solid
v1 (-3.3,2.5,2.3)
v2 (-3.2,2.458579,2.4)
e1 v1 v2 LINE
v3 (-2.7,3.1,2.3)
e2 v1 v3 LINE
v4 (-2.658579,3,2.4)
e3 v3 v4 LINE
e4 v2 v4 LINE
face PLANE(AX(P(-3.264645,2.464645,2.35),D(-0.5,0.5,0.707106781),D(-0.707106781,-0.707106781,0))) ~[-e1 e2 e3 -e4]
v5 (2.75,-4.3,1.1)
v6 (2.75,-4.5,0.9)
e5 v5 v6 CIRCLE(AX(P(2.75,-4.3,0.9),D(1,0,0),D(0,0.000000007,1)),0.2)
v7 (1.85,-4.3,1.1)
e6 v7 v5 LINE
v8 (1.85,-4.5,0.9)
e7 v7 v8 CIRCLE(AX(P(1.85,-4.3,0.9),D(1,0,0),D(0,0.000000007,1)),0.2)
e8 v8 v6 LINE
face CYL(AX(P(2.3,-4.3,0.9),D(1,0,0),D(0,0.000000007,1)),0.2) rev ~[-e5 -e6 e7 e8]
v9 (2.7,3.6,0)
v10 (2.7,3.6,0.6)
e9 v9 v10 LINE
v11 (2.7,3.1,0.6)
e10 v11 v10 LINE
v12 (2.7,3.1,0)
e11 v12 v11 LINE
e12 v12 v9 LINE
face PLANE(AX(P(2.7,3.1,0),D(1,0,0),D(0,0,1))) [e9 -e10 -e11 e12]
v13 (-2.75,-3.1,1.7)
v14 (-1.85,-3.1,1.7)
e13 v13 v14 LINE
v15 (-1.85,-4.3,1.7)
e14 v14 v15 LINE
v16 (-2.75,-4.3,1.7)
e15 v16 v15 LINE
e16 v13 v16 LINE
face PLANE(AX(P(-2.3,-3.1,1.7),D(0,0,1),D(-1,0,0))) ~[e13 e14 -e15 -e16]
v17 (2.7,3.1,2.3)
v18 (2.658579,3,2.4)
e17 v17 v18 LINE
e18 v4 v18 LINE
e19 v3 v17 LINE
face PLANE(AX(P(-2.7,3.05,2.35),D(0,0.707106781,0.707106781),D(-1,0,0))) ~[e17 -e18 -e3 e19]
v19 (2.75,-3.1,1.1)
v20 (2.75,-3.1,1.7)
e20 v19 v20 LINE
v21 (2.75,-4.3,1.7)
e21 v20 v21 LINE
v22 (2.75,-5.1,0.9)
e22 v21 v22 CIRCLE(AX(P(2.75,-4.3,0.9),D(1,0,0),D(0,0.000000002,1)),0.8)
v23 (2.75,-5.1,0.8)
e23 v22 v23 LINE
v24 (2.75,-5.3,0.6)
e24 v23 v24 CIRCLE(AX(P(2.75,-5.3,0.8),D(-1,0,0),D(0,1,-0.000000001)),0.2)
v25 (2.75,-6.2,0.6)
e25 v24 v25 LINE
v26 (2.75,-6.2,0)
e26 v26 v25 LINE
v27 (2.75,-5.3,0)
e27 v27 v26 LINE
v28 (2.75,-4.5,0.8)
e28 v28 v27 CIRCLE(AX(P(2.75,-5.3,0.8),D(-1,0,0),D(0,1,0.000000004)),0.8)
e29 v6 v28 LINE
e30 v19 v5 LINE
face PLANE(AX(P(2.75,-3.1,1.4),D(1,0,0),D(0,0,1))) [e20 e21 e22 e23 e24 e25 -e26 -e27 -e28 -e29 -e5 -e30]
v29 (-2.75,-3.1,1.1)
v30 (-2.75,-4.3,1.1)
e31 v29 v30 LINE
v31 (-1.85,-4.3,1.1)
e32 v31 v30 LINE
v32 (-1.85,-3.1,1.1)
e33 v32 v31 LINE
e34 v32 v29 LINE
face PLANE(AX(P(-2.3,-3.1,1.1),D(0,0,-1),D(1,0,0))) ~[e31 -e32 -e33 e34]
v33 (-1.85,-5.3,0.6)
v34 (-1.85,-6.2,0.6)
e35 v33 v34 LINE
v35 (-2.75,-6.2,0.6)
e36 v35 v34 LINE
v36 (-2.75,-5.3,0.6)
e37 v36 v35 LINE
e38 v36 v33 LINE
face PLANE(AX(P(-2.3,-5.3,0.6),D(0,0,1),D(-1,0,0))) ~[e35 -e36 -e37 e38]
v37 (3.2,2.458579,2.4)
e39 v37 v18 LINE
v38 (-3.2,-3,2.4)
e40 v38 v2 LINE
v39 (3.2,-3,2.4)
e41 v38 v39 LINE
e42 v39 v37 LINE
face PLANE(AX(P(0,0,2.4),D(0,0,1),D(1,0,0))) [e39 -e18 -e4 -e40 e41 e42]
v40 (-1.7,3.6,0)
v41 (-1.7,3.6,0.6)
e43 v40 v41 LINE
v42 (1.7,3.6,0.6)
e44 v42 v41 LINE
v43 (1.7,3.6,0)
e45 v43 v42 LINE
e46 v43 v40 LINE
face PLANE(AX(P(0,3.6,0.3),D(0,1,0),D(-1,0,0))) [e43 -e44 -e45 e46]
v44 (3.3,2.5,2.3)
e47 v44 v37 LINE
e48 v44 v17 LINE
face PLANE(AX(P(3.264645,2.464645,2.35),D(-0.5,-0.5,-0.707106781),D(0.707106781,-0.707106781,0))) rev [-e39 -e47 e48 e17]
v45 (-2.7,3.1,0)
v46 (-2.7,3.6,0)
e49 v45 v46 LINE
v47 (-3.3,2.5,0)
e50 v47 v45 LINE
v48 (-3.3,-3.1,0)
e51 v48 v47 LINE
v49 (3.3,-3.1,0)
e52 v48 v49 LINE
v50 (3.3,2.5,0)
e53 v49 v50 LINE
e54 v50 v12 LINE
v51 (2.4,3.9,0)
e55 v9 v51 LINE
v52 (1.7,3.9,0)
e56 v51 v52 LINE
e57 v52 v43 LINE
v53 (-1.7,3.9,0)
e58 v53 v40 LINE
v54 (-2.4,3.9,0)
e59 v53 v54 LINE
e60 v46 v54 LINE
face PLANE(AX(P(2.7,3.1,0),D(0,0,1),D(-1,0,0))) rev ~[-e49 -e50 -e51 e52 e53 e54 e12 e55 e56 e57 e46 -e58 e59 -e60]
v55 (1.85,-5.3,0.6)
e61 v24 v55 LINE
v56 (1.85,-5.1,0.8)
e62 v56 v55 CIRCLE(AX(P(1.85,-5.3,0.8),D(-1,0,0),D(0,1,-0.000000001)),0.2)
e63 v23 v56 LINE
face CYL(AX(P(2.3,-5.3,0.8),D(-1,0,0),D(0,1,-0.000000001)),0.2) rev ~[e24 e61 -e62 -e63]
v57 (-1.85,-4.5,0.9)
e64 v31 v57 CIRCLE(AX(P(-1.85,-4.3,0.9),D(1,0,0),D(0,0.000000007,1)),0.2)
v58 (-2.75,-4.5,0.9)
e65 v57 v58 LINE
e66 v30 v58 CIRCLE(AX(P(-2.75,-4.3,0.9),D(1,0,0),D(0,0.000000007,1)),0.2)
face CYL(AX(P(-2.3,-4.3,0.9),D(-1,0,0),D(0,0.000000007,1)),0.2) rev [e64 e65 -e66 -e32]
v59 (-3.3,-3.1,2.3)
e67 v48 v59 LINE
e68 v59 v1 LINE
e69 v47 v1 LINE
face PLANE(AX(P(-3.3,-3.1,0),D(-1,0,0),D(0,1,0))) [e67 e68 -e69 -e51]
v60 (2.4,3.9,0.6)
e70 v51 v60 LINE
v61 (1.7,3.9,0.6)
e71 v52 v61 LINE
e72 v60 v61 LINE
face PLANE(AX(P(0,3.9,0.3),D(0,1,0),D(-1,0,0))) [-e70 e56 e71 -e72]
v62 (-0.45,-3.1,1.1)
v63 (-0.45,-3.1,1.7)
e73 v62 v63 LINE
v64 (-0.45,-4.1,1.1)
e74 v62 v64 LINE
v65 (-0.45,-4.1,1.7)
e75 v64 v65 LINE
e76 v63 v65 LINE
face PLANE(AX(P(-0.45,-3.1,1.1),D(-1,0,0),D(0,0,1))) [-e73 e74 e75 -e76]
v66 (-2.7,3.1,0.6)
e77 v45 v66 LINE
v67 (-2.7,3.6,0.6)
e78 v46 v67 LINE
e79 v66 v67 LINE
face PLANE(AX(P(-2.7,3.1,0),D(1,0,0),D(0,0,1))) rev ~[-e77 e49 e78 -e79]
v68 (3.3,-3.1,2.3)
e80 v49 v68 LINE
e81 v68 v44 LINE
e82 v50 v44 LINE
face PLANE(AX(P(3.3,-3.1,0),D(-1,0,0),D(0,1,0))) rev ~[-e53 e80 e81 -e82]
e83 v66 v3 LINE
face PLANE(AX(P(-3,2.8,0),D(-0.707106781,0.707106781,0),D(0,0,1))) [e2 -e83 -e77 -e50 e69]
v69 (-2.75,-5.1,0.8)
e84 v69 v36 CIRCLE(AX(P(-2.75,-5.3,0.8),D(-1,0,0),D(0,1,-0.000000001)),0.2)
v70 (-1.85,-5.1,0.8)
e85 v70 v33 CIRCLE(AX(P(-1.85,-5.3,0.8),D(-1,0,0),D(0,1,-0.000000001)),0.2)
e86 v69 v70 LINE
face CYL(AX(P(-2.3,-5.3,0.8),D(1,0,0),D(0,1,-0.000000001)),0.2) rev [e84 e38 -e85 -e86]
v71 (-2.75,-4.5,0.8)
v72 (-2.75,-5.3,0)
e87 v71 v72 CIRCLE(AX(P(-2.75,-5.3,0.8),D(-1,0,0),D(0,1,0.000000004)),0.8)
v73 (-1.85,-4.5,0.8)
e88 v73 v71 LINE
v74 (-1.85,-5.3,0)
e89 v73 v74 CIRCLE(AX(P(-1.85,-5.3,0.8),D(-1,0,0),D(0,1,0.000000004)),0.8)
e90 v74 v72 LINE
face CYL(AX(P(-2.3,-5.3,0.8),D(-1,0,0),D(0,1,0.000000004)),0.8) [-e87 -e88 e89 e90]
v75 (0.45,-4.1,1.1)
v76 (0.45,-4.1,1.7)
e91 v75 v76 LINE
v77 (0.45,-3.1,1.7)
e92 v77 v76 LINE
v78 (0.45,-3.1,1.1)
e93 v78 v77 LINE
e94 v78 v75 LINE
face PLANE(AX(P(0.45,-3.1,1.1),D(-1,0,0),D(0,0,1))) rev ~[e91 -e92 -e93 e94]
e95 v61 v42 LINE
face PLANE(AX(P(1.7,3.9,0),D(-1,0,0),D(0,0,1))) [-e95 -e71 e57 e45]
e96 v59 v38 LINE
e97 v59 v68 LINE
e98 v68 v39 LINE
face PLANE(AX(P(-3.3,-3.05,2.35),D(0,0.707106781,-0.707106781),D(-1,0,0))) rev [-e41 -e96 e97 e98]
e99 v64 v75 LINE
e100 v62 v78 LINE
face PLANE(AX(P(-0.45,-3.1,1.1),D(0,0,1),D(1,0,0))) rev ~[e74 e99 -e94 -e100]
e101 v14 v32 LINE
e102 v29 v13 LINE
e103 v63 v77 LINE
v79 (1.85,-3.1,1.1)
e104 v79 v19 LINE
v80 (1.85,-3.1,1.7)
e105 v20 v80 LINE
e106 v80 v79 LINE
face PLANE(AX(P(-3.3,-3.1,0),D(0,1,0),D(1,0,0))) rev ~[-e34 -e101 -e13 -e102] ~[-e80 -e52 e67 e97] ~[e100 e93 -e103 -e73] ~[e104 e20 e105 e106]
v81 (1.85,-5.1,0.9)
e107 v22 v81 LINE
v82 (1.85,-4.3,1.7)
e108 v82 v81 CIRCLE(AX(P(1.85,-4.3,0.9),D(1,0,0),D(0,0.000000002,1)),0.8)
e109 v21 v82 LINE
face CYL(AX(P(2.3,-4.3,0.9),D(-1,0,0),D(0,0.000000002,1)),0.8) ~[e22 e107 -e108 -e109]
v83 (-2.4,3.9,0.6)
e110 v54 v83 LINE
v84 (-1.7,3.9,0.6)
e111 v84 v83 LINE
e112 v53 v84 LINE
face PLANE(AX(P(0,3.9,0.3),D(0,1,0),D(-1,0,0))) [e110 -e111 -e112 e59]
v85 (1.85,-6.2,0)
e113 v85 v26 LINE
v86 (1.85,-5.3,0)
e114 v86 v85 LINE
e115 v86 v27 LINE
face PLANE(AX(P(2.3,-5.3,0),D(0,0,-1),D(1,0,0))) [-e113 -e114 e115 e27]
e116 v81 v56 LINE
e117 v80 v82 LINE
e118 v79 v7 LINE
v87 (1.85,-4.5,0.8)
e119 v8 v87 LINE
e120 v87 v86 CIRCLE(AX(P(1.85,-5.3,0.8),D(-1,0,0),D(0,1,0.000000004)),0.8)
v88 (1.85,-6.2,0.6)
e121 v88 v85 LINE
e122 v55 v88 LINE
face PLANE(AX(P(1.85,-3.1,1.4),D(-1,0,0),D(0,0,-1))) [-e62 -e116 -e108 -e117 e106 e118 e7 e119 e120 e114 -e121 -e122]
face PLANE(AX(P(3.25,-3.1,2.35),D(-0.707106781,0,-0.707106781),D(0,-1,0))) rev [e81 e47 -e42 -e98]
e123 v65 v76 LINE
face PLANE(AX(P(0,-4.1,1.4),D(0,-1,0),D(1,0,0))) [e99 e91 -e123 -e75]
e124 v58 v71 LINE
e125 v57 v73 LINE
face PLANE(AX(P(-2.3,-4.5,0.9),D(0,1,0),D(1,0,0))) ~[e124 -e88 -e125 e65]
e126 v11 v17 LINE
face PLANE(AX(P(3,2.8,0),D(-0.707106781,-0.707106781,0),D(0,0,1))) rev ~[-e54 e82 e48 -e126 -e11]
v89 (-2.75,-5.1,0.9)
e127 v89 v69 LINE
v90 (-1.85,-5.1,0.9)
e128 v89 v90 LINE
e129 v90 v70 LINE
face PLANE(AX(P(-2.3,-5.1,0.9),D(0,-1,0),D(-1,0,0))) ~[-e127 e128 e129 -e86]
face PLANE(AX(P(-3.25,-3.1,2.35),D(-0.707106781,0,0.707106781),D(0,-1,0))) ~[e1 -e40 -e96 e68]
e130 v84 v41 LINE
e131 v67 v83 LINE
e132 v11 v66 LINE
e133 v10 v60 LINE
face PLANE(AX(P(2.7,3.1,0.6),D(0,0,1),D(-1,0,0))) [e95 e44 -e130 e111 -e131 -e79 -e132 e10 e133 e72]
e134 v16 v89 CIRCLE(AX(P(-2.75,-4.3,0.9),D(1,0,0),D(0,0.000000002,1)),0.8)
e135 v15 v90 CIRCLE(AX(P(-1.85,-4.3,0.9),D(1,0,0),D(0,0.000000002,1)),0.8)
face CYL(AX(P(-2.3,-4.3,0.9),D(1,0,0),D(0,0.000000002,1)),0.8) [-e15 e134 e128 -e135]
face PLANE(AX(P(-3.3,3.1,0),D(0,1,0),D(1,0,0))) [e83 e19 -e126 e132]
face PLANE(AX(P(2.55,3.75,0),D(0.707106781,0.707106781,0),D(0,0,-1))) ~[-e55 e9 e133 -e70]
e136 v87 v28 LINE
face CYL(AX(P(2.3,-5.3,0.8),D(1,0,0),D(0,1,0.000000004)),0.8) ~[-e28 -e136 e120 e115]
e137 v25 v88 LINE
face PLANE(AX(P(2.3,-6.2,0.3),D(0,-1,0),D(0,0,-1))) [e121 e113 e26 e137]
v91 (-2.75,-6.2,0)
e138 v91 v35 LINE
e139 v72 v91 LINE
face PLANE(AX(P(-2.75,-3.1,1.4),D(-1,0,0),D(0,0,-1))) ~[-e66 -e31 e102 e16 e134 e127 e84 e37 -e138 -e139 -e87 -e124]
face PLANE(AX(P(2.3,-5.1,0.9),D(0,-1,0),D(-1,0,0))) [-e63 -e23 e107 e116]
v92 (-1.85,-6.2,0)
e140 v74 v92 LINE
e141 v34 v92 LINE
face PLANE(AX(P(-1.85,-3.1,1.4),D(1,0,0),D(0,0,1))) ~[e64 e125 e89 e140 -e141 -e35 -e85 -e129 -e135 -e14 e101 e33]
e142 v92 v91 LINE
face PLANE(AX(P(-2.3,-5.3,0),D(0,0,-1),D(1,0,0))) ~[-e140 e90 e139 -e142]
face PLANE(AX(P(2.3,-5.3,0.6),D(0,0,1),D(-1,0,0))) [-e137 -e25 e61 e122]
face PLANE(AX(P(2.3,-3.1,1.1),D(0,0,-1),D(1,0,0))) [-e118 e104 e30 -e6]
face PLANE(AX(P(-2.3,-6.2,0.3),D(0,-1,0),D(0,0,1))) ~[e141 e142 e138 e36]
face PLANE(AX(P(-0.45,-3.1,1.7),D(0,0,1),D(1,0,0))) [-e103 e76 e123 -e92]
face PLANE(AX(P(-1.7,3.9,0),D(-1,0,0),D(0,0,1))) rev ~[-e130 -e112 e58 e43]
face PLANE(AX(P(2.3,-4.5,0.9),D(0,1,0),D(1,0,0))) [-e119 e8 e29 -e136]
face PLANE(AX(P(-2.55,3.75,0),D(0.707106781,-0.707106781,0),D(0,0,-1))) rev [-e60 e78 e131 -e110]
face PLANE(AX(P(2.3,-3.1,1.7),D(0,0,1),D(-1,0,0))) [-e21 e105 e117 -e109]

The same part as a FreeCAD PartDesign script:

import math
import FreeCAD as App
import Part
import Sketcher


def edges_at(feature, points):
    """Names of the edges that pass closest to the given points."""
    edges = feature.Shape.Edges
    near = lambda p: min(range(len(edges)), key=lambda i: edges[i].distToShape(Part.Vertex(*p))[0])
    return sorted({f"Edge{near(p) + 1}" for p in points})

doc = App.newDocument("Part")
body = doc.addObject("PartDesign::Body", "Body")

sketch1 = doc.addObject("Sketcher::SketchObject", "Sketch")
body.addObject(sketch1)
sketch1.AttachmentSupport = (doc.XY_Plane, [""])
sketch1.MapMode = "FlatFace"
sketch1.addGeometry(Part.LineSegment(App.Vector(-3, 3, 0), App.Vector(-3, -3, 0)), False)
sketch1.addGeometry(Part.LineSegment(App.Vector(-3, -3, 0), App.Vector(3, -3, 0)), False)
sketch1.addGeometry(Part.LineSegment(App.Vector(3, -3, 0), App.Vector(3, 3, 0)), False)
sketch1.addGeometry(Part.LineSegment(App.Vector(3, 3, 0), App.Vector(-3, 3, 0)), False)
sketch1.addConstraint(Sketcher.Constraint("Coincident", 0, 2, 1, 1))
sketch1.addConstraint(Sketcher.Constraint("Coincident", 1, 2, 2, 1))
sketch1.addConstraint(Sketcher.Constraint("Coincident", 2, 2, 3, 1))
sketch1.addConstraint(Sketcher.Constraint("Coincident", 3, 2, 0, 1))
sketch1.addConstraint(Sketcher.Constraint("Vertical", 0))
sketch1.addConstraint(Sketcher.Constraint("Horizontal", 1))
sketch1.addConstraint(Sketcher.Constraint("Vertical", 2))
sketch1.addConstraint(Sketcher.Constraint("Horizontal", 3))
sketch1.addConstraint(Sketcher.Constraint("Symmetric", 0, 2, 2, 2, -1, 1))
sketch1.addConstraint(Sketcher.Constraint("DistanceX", 1, 1, 1, 2, 6.6))
sketch1.addConstraint(Sketcher.Constraint("DistanceY", 0, 2, 0, 1, 6.2))
pad1 = doc.addObject("PartDesign::Pad", "Pad")
body.addObject(pad1)
pad1.Profile = sketch1
pad1.Length = 2.4
doc.recompute()

chamfer = doc.addObject("PartDesign::Chamfer", "Chamfer")
body.addObject(chamfer)
chamfer.Base = (pad1, edges_at(pad1, [(-3.3, 3.1, 1.2), (3.3, 3.1, 1.2)]))
chamfer.Size = 0.6

sketch2 = doc.addObject("Sketcher::SketchObject", "Sketch001")
body.addObject(sketch2)
sketch2.AttachmentSupport = (doc.XZ_Plane, [""])
sketch2.MapMode = "FlatFace"
sketch2.AttachmentOffset = App.Placement(App.Vector(0, 0, 3.1), App.Rotation())
sketch2.addGeometry(Part.LineSegment(App.Vector(1.9, 1.7, 0), App.Vector(1.9, 1.1, 0)), False)
sketch2.addGeometry(Part.LineSegment(App.Vector(1.9, 1.1, 0), App.Vector(2.8, 1.1, 0)), False)
sketch2.addGeometry(Part.LineSegment(App.Vector(2.8, 1.1, 0), App.Vector(2.8, 1.7, 0)), False)
sketch2.addGeometry(Part.LineSegment(App.Vector(2.8, 1.7, 0), App.Vector(1.9, 1.7, 0)), False)
sketch2.addConstraint(Sketcher.Constraint("Coincident", 0, 2, 1, 1))
sketch2.addConstraint(Sketcher.Constraint("Coincident", 1, 2, 2, 1))
sketch2.addConstraint(Sketcher.Constraint("Coincident", 2, 2, 3, 1))
sketch2.addConstraint(Sketcher.Constraint("Coincident", 3, 2, 0, 1))
sketch2.addConstraint(Sketcher.Constraint("Vertical", 0))
sketch2.addConstraint(Sketcher.Constraint("Horizontal", 1))
sketch2.addConstraint(Sketcher.Constraint("Vertical", 2))
sketch2.addConstraint(Sketcher.Constraint("Horizontal", 3))
sketch2.addConstraint(Sketcher.Constraint("DistanceX", 1, 1, 1, 2, 0.9))
sketch2.addConstraint(Sketcher.Constraint("DistanceY", 0, 2, 0, 1, 0.6))
sketch2.addConstraint(Sketcher.Constraint("DistanceY", -1, 1, 0, 2, 1.1))
sketch2.addConstraint(Sketcher.Constraint("DistanceX", -1, 1, 0, 2, 1.85))

sketch3 = doc.addObject("Sketcher::SketchObject", "Sketch002")
body.addObject(sketch3)
sketch3.AttachmentSupport = (doc.YZ_Plane, [""])
sketch3.MapMode = "FlatFace"
sketch3.AttachmentOffset = App.Placement(App.Vector(0, 0, 2.3), App.Rotation())
sketch3.addGeometry(Part.LineSegment(App.Vector(-3.1, 1.4, 0), App.Vector(-4.3, 1.4, 0)), False)
sketch3.addGeometry(Part.ArcOfCircle(Part.Circle(App.Vector(-4.3, 0.9, 0), App.Vector(0, 0, 1), 0.5), math.radians(90), math.radians(180)), False)
sketch3.addGeometry(Part.LineSegment(App.Vector(-4.8, 0.9, 0), App.Vector(-4.8, 0.8, 0)), False)
sketch3.addGeometry(Part.ArcOfCircle(Part.Circle(App.Vector(-5.3, 0.8, 0), App.Vector(0, 0, 1), 0.5), math.radians(-90), math.radians(0)), False)
sketch3.addGeometry(Part.LineSegment(App.Vector(-5.3, 0.3, 0), App.Vector(-6.2, 0.3, 0)), False)
sketch3.addConstraint(Sketcher.Constraint("Tangent", 0, 2, 1, 1))
sketch3.addConstraint(Sketcher.Constraint("Tangent", 1, 2, 2, 1))
sketch3.addConstraint(Sketcher.Constraint("Tangent", 2, 2, 3, 2))
sketch3.addConstraint(Sketcher.Constraint("Tangent", 3, 1, 4, 1))
sketch3.addConstraint(Sketcher.Constraint("Horizontal", 0))
sketch3.addConstraint(Sketcher.Constraint("Vertical", 2))
sketch3.addConstraint(Sketcher.Constraint("Horizontal", 4))
sketch3.addConstraint(Sketcher.Constraint("Equal", 1, 3))
sketch3.addConstraint(Sketcher.Constraint("Radius", 1, 0.5))
sketch3.addConstraint(Sketcher.Constraint("DistanceX", 0, 2, 0, 1, 1.2))
sketch3.addConstraint(Sketcher.Constraint("DistanceX", 4, 2, 4, 1, 0.9))
sketch3.addConstraint(Sketcher.Constraint("DistanceY", 2, 2, 2, 1, 0.1))
sketch3.addConstraint(Sketcher.Constraint("DistanceX", 1, 3, -1, 1, 4.3))
sketch3.addConstraint(Sketcher.Constraint("DistanceY", -1, 1, 1, 3, 0.9))
doc.recompute()

additivepipe = doc.addObject("PartDesign::AdditivePipe", "AdditivePipe")
body.addObject(additivepipe)
additivepipe.Profile = sketch2
additivepipe.Spine = (sketch3, ["Edge1", "Edge2", "Edge3", "Edge4", "Edge5"])
doc.recompute()

mirrored = doc.addObject("PartDesign::Mirrored", "Mirrored")
body.addObject(mirrored)
mirrored.Originals = [additivepipe]
mirrored.MirrorPlane = (doc.YZ_Plane, [""])
body.Tip = mirrored

sketch4 = doc.addObject("Sketcher::SketchObject", "Sketch003")
body.addObject(sketch4)
sketch4.AttachmentSupport = (doc.XZ_Plane, [""])
sketch4.MapMode = "FlatFace"
sketch4.AttachmentOffset = App.Placement(App.Vector(0, 0, 3.1), App.Rotation())
sketch4.addGeometry(Part.LineSegment(App.Vector(-0.5, 1.7, 0), App.Vector(-0.5, 1.1, 0)), False)
sketch4.addGeometry(Part.LineSegment(App.Vector(-0.5, 1.1, 0), App.Vector(0.5, 1.1, 0)), False)
sketch4.addGeometry(Part.LineSegment(App.Vector(0.5, 1.1, 0), App.Vector(0.5, 1.7, 0)), False)
sketch4.addGeometry(Part.LineSegment(App.Vector(0.5, 1.7, 0), App.Vector(-0.5, 1.7, 0)), False)
sketch4.addConstraint(Sketcher.Constraint("Coincident", 0, 2, 1, 1))
sketch4.addConstraint(Sketcher.Constraint("Coincident", 1, 2, 2, 1))
sketch4.addConstraint(Sketcher.Constraint("Coincident", 2, 2, 3, 1))
sketch4.addConstraint(Sketcher.Constraint("Coincident", 3, 2, 0, 1))
sketch4.addConstraint(Sketcher.Constraint("Vertical", 0))
sketch4.addConstraint(Sketcher.Constraint("Horizontal", 1))
sketch4.addConstraint(Sketcher.Constraint("Vertical", 2))
sketch4.addConstraint(Sketcher.Constraint("Horizontal", 3))
sketch4.addConstraint(Sketcher.Constraint("DistanceX", 1, 1, 1, 2, 0.9))
sketch4.addConstraint(Sketcher.Constraint("DistanceY", 0, 2, 0, 1, 0.6))
sketch4.addConstraint(Sketcher.Constraint("DistanceY", -1, 1, 0, 2, 1.1))
sketch4.addConstraint(Sketcher.Constraint("DistanceX", 0, 2, -1, 1, 0.45))
pad2 = doc.addObject("PartDesign::Pad", "Pad001")
body.addObject(pad2)
pad2.Profile = sketch4
pad2.Length = 1

sketch5 = doc.addObject("Sketcher::SketchObject", "Sketch004")
body.addObject(sketch5)
sketch5.AttachmentSupport = (doc.XZ_Plane, [""])
sketch5.MapMode = "FlatFace"
sketch5.AttachmentOffset = App.Placement(App.Vector(0, 0, -3.1), App.Rotation())
sketch5.addGeometry(Part.LineSegment(App.Vector(2.7, 0.6, 0), App.Vector(2.7, 0, 0)), False)
sketch5.addGeometry(Part.LineSegment(App.Vector(2.7, 0, 0), App.Vector(-2.7, 0, 0)), False)
sketch5.addGeometry(Part.LineSegment(App.Vector(-2.7, 0, 0), App.Vector(-2.7, 0.6, 0)), False)
sketch5.addGeometry(Part.LineSegment(App.Vector(-2.7, 0.6, 0), App.Vector(2.7, 0.6, 0)), False)
sketch5.addConstraint(Sketcher.Constraint("Coincident", 0, 2, 1, 1))
sketch5.addConstraint(Sketcher.Constraint("Coincident", 1, 2, 2, 1))
sketch5.addConstraint(Sketcher.Constraint("Coincident", 2, 2, 3, 1))
sketch5.addConstraint(Sketcher.Constraint("Coincident", 3, 2, 0, 1))
sketch5.addConstraint(Sketcher.Constraint("Vertical", 0))
sketch5.addConstraint(Sketcher.Constraint("Horizontal", 1))
sketch5.addConstraint(Sketcher.Constraint("Vertical", 2))
sketch5.addConstraint(Sketcher.Constraint("Horizontal", 3))
sketch5.addConstraint(Sketcher.Constraint("Symmetric", 0, 2, 1, 2, -1, 1))
sketch5.addConstraint(Sketcher.Constraint("DistanceX", 1, 2, 1, 1, 5.4))
sketch5.addConstraint(Sketcher.Constraint("DistanceY", 0, 2, 0, 1, 0.6))
pad3 = doc.addObject("PartDesign::Pad", "Pad002")
body.addObject(pad3)
pad3.Profile = sketch5
pad3.Length = 0.8
pad3.Reversed = True

sketch6 = doc.addObject("Sketcher::SketchObject", "Sketch005")
body.addObject(sketch6)
sketch6.AttachmentSupport = (doc.XZ_Plane, [""])
sketch6.MapMode = "FlatFace"
sketch6.AttachmentOffset = App.Placement(App.Vector(0, 0, -3.9), App.Rotation())
sketch6.addGeometry(Part.LineSegment(App.Vector(1.7, 0.6, 0), App.Vector(1.7, 0, 0)), False)
sketch6.addGeometry(Part.LineSegment(App.Vector(1.7, 0, 0), App.Vector(-1.7, 0, 0)), False)
sketch6.addGeometry(Part.LineSegment(App.Vector(-1.7, 0, 0), App.Vector(-1.7, 0.6, 0)), False)
sketch6.addGeometry(Part.LineSegment(App.Vector(-1.7, 0.6, 0), App.Vector(1.7, 0.6, 0)), False)
sketch6.addConstraint(Sketcher.Constraint("Coincident", 0, 2, 1, 1))
sketch6.addConstraint(Sketcher.Constraint("Coincident", 1, 2, 2, 1))
sketch6.addConstraint(Sketcher.Constraint("Coincident", 2, 2, 3, 1))
sketch6.addConstraint(Sketcher.Constraint("Coincident", 3, 2, 0, 1))
sketch6.addConstraint(Sketcher.Constraint("Vertical", 0))
sketch6.addConstraint(Sketcher.Constraint("Horizontal", 1))
sketch6.addConstraint(Sketcher.Constraint("Vertical", 2))
sketch6.addConstraint(Sketcher.Constraint("Horizontal", 3))
sketch6.addConstraint(Sketcher.Constraint("Symmetric", 0, 2, 1, 2, -1, 1))
sketch6.addConstraint(Sketcher.Constraint("DistanceX", 1, 2, 1, 1, 3.4))
sketch6.addConstraint(Sketcher.Constraint("DistanceY", 0, 2, 0, 1, 0.6))
pocket1 = doc.addObject("PartDesign::Pocket", "Pocket")
body.addObject(pocket1)
pocket1.Profile = sketch6
pocket1.Length = 0.3
pocket1.Reversed = True
doc.recompute()

chamfer2 = doc.addObject("PartDesign::Chamfer", "Chamfer001")
body.addObject(chamfer2)
chamfer2.Base = (pocket1, edges_at(pocket1, [(-2.7, 3.9, 0.3), (2.7, 3.9, 0.3)]))
chamfer2.Size = 0.3
doc.recompute()

chamfer3 = doc.addObject("PartDesign::Chamfer", "Chamfer002")
body.addObject(chamfer3)
chamfer3.Base = (chamfer2, edges_at(chamfer2, [
    (0, -3.1, 2.4),
    (-3.3, -0.3, 2.4),
    (-3, 2.8, 2.4),
    (0, 3.1, 2.4),
    (3, 2.8, 2.4),
    (3.3, -0.3, 2.4),
]))
chamfer3.Size = 0.1

doc.recompute()
